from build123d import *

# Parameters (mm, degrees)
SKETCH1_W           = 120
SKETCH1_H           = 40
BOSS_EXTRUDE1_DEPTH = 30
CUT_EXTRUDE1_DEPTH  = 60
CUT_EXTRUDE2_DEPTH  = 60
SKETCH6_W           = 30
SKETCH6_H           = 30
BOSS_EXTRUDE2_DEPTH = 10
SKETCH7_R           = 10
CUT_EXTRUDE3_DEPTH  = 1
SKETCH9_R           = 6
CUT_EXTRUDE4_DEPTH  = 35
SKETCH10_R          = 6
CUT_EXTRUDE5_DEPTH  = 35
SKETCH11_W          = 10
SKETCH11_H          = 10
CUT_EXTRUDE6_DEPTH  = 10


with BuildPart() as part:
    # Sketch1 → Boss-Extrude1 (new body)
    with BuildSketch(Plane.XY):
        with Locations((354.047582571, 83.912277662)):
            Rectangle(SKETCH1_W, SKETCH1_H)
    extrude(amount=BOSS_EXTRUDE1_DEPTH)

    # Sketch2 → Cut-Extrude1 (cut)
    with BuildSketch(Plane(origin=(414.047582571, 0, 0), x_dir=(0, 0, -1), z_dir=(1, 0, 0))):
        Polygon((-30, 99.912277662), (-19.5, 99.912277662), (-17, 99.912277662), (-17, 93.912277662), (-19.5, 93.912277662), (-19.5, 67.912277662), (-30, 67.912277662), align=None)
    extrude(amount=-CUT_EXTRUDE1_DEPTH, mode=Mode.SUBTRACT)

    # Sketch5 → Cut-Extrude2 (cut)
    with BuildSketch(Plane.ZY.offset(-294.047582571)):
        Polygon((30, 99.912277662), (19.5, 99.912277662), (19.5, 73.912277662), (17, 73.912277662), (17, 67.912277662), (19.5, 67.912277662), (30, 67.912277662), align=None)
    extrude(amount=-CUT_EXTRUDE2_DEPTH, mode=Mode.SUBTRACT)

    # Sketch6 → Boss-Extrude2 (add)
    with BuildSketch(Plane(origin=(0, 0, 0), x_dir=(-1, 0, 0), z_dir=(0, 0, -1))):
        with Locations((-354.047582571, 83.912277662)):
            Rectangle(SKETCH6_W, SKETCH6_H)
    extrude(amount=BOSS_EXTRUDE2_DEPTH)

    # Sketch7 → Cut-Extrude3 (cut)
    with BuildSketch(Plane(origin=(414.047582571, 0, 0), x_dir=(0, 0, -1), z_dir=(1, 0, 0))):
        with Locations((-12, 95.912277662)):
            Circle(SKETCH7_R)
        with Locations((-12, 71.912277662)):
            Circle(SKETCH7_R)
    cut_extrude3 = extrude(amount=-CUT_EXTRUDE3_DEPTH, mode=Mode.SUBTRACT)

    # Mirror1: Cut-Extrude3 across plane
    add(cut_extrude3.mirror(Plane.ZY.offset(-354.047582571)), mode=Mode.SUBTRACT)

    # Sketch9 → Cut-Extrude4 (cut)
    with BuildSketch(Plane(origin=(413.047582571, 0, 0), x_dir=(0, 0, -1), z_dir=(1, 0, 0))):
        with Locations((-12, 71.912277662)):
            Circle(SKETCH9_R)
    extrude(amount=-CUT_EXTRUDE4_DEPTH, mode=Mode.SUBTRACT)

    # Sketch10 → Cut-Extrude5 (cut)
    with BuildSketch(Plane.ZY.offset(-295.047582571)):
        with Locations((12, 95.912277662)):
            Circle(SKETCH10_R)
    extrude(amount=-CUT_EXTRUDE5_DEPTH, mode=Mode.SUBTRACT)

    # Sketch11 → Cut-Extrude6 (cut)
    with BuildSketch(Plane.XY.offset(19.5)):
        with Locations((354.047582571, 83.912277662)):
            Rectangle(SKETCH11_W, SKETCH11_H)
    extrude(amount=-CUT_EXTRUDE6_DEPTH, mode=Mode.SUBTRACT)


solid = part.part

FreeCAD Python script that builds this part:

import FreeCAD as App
import Part
import Sketcher
from FreeCAD import Vector
Q = App.Units.Quantity


def add_polygon(sketch, points):
    """Adds a closed chain of lines whose ends are joined by coincident constraints."""
    first, n = sketch.GeometryCount, len(points)
    for a, b in zip(points, points[1:] + points[:1]):
        sketch.addGeometry(Part.LineSegment(App.Vector(*a, 0), App.Vector(*b, 0)), False)
    for i in range(n):
        sketch.addConstraint(Sketcher.Constraint("Coincident", first + i, 2, first + (i + 1) % n, 1))

doc = App.newDocument("Part")
body = doc.addObject("PartDesign::Body", "Body")

sketch1 = doc.addObject("Sketcher::SketchObject", "Sketch")
body.addObject(sketch1)
sketch1.AttachmentSupport = (doc.XY_Plane, [""])
sketch1.MapMode = "FlatFace"
add_polygon(sketch1, [(294.047583, 103.912278), (294.047583, 63.912278), (414.047583, 63.912278), (414.047583, 103.912278)])
sketch1.addConstraint(Sketcher.Constraint("Vertical", 0))
sketch1.addConstraint(Sketcher.Constraint("Horizontal", 1))
sketch1.addConstraint(Sketcher.Constraint("Vertical", 2))
sketch1.addConstraint(Sketcher.Constraint("Horizontal", 3))
sketch1.addConstraint(Sketcher.Constraint("DistanceX", 1, 1, 1, 2, Q("120 mm")))
sketch1.addConstraint(Sketcher.Constraint("DistanceY", 0, 2, 0, 1, Q("40 mm")))
sketch1.addConstraint(Sketcher.Constraint("DistanceX", -1, 1, 0, 2, Q("294.047583 mm")))
sketch1.addConstraint(Sketcher.Constraint("DistanceY", -1, 1, 0, 2, Q("63.912278 mm")))
pad1 = doc.addObject("PartDesign::Pad", "Pad")
body.addObject(pad1)
pad1.Profile = sketch1
pad1.Length = 30

sketch2 = doc.addObject("Sketcher::SketchObject", "Sketch001")
body.addObject(sketch2)
sketch2.AttachmentSupport = (doc.YZ_Plane, [""])
sketch2.MapMode = "FlatFace"
sketch2.AttachmentOffset = App.Placement(Vector(0, 0, 414.047583), App.Rotation())
add_polygon(sketch2, [(99.912278, 17), (99.912278, 30), (67.912278, 30), (67.912278, 19.5), (93.912278, 19.5), (93.912278, 17)])
sketch2.addConstraint(Sketcher.Constraint("Vertical", 0))
sketch2.addConstraint(Sketcher.Constraint("Horizontal", 1))
sketch2.addConstraint(Sketcher.Constraint("Vertical", 2))
sketch2.addConstraint(Sketcher.Constraint("Horizontal", 3))
sketch2.addConstraint(Sketcher.Constraint("Vertical", 4))
sketch2.addConstraint(Sketcher.Constraint("Horizontal", 5))
sketch2.addConstraint(Sketcher.Constraint("DistanceX", 1, 2, 1, 1, Q("32 mm")))
sketch2.addConstraint(Sketcher.Constraint("DistanceX", 3, 1, 3, 2, Q("26 mm")))
sketch2.addConstraint(Sketcher.Constraint("DistanceY", 0, 1, 0, 2, Q("13 mm")))
sketch2.addConstraint(Sketcher.Constraint("DistanceY", 2, 2, 2, 1, Q("10.5 mm")))
sketch2.addConstraint(Sketcher.Constraint("DistanceY", -1, 1, 0, 2, Q("30 mm")))
sketch2.addConstraint(Sketcher.Constraint("DistanceX", -1, 1, 0, 2, Q("99.912278 mm")))
pocket1 = doc.addObject("PartDesign::Pocket", "Pocket")
body.addObject(pocket1)
pocket1.Profile = sketch2
pocket1.Length = 60

sketch3 = doc.addObject("Sketcher::SketchObject", "Sketch002")
body.addObject(sketch3)
sketch3.AttachmentSupport = (doc.YZ_Plane, [""])
sketch3.MapMode = "FlatFace"
sketch3.AttachmentOffset = App.Placement(Vector(0, 0, 294.047583), App.Rotation())
add_polygon(sketch3, [(99.912278, 30), (99.912278, 19.5), (73.912278, 19.5), (73.912278, 17), (67.912278, 17), (67.912278, 30)])
sketch3.addConstraint(Sketcher.Constraint("Vertical", 0))
sketch3.addConstraint(Sketcher.Constraint("Horizontal", 1))
sketch3.addConstraint(Sketcher.Constraint("Vertical", 2))
sketch3.addConstraint(Sketcher.Constraint("Horizontal", 3))
sketch3.addConstraint(Sketcher.Constraint("Vertical", 4))
sketch3.addConstraint(Sketcher.Constraint("Horizontal", 5))
sketch3.addConstraint(Sketcher.Constraint("DistanceX", 1, 2, 1, 1, Q("26 mm")))
sketch3.addConstraint(Sketcher.Constraint("DistanceX", 3, 2, 3, 1, Q("6 mm")))
sketch3.addConstraint(Sketcher.Constraint("DistanceY", 4, 1, 4, 2, Q("13 mm")))
sketch3.addConstraint(Sketcher.Constraint("DistanceY", 0, 2, 0, 1, Q("10.5 mm")))
sketch3.addConstraint(Sketcher.Constraint("DistanceY", -1, 1, 2, 2, Q("17 mm")))
sketch3.addConstraint(Sketcher.Constraint("DistanceX", -1, 1, 0, 2, Q("99.912278 mm")))
pocket2 = doc.addObject("PartDesign::Pocket", "Pocket001")
body.addObject(pocket2)
pocket2.Profile = sketch3
pocket2.Length = 60
pocket2.Reversed = True

sketch4 = doc.addObject("Sketcher::SketchObject", "Sketch003")
body.addObject(sketch4)
sketch4.AttachmentSupport = (doc.XY_Plane, [""])
sketch4.MapMode = "FlatFace"
add_polygon(sketch4, [(369.047583, 98.912278), (369.047583, 68.912278), (339.047583, 68.912278), (339.047583, 98.912278)])
sketch4.addConstraint(Sketcher.Constraint("Vertical", 0))
sketch4.addConstraint(Sketcher.Constraint("Horizontal", 1))
sketch4.addConstraint(Sketcher.Constraint("Vertical", 2))
sketch4.addConstraint(Sketcher.Constraint("Horizontal", 3))
sketch4.addConstraint(Sketcher.Constraint("Equal", 3, 0))
sketch4.addConstraint(Sketcher.Constraint("DistanceX", 1, 2, 1, 1, Q("30 mm")))
sketch4.addConstraint(Sketcher.Constraint("DistanceX", -1, 1, 0, 2, Q("369.047583 mm")))
sketch4.addConstraint(Sketcher.Constraint("DistanceY", -1, 1, 0, 2, Q("68.912278 mm")))
pad2 = doc.addObject("PartDesign::Pad", "Pad001")
body.addObject(pad2)
pad2.Profile = sketch4
pad2.Length = 10
pad2.Reversed = True

sketch5 = doc.addObject("Sketcher::SketchObject", "Sketch004")
body.addObject(sketch5)
sketch5.AttachmentSupport = (doc.YZ_Plane, [""])
sketch5.MapMode = "FlatFace"
sketch5.AttachmentOffset = App.Placement(Vector(0, 0, 414.047583), App.Rotation())
sketch5.addGeometry(Part.Circle(Vector(95.912278, 12, 0), Vector(0, 0, 1), 10), False)
sketch5.addGeometry(Part.Circle(Vector(71.912278, 12, 0), Vector(0, 0, 1), 10), False)
sketch5.addConstraint(Sketcher.Constraint("Equal", 0, 1))
sketch5.addConstraint(Sketcher.Constraint("Horizontal", 0, 3, 1, 3))
sketch5.addConstraint(Sketcher.Constraint("Diameter", 0, Q("20 mm")))
sketch5.addConstraint(Sketcher.Constraint("DistanceY", -1, 1, 0, 3, Q("12 mm")))
sketch5.addConstraint(Sketcher.Constraint("DistanceX", 1, 3, 0, 3, Q("24 mm")))
sketch5.addConstraint(Sketcher.Constraint("DistanceX", -1, 1, 0, 3, Q("95.912278 mm")))
pocket3 = doc.addObject("PartDesign::Pocket", "Pocket002")
body.addObject(pocket3)
pocket3.Profile = sketch5
pocket3.Length = 1
doc.recompute()

datumplane = doc.addObject("PartDesign::Plane", "DatumPlane")
body.addObject(datumplane)
datumplane.AttachmentSupport = (doc.YZ_Plane, [""])
datumplane.MapMode = "FlatFace"
datumplane.AttachmentOffset = App.Placement(Vector(0, 0, 354.047583), App.Rotation())
mirrored = doc.addObject("PartDesign::Mirrored", "Mirrored")
body.addObject(mirrored)
mirrored.Originals = [pocket3]
mirrored.MirrorPlane = (datumplane, [""])
body.Tip = mirrored

sketch6 = doc.addObject("Sketcher::SketchObject", "Sketch005")
body.addObject(sketch6)
sketch6.AttachmentSupport = (doc.YZ_Plane, [""])
sketch6.MapMode = "FlatFace"
sketch6.AttachmentOffset = App.Placement(Vector(0, 0, 413.047583), App.Rotation())
sketch6.addGeometry(Part.Circle(Vector(71.912278, 12, 0), Vector(0, 0, 1), 6), False)
sketch6.addConstraint(Sketcher.Constraint("Diameter", 0, Q("12 mm")))
sketch6.addConstraint(Sketcher.Constraint("DistanceY", -1, 1, 0, 3, Q("12 mm")))
sketch6.addConstraint(Sketcher.Constraint("DistanceX", -1, 1, 0, 3, Q("71.912278 mm")))
pocket4 = doc.addObject("PartDesign::Pocket", "Pocket003")
body.addObject(pocket4)
pocket4.Profile = sketch6
pocket4.Length = 35

sketch7 = doc.addObject("Sketcher::SketchObject", "Sketch006")
body.addObject(sketch7)
sketch7.AttachmentSupport = (doc.YZ_Plane, [""])
sketch7.MapMode = "FlatFace"
sketch7.AttachmentOffset = App.Placement(Vector(0, 0, 295.047583), App.Rotation())
sketch7.addGeometry(Part.Circle(Vector(95.912278, 12, 0), Vector(0, 0, 1), 6), False)
sketch7.addConstraint(Sketcher.Constraint("Diameter", 0, Q("12 mm")))
sketch7.addConstraint(Sketcher.Constraint("DistanceY", -1, 1, 0, 3, Q("12 mm")))
sketch7.addConstraint(Sketcher.Constraint("DistanceX", -1, 1, 0, 3, Q("95.912278 mm")))
pocket5 = doc.addObject("PartDesign::Pocket", "Pocket004")
body.addObject(pocket5)
pocket5.Profile = sketch7
pocket5.Length = 35
pocket5.Reversed = True

sketch8 = doc.addObject("Sketcher::SketchObject", "Sketch007")
body.addObject(sketch8)
sketch8.AttachmentSupport = (doc.XY_Plane, [""])
sketch8.MapMode = "FlatFace"
sketch8.AttachmentOffset = App.Placement(Vector(0, 0, 19.5), App.Rotation())
add_polygon(sketch8, [(349.047583, 88.912278), (349.047583, 78.912278), (359.047583, 78.912278), (359.047583, 88.912278)])
sketch8.addConstraint(Sketcher.Constraint("Vertical", 0))
sketch8.addConstraint(Sketcher.Constraint("Horizontal", 1))
sketch8.addConstraint(Sketcher.Constraint("Vertical", 2))
sketch8.addConstraint(Sketcher.Constraint("Horizontal", 3))
sketch8.addConstraint(Sketcher.Constraint("Equal", 3, 0))
sketch8.addConstraint(Sketcher.Constraint("DistanceX", 1, 1, 1, 2, Q("10 mm")))
sketch8.addConstraint(Sketcher.Constraint("DistanceX", -1, 1, 0, 2, Q("349.047583 mm")))
sketch8.addConstraint(Sketcher.Constraint("DistanceY", -1, 1, 0, 2, Q("78.912278 mm")))
pocket6 = doc.addObject("PartDesign::Pocket", "Pocket005")
body.addObject(pocket6)
pocket6.Profile = sketch8
pocket6.Length = 10

doc.recompute()
